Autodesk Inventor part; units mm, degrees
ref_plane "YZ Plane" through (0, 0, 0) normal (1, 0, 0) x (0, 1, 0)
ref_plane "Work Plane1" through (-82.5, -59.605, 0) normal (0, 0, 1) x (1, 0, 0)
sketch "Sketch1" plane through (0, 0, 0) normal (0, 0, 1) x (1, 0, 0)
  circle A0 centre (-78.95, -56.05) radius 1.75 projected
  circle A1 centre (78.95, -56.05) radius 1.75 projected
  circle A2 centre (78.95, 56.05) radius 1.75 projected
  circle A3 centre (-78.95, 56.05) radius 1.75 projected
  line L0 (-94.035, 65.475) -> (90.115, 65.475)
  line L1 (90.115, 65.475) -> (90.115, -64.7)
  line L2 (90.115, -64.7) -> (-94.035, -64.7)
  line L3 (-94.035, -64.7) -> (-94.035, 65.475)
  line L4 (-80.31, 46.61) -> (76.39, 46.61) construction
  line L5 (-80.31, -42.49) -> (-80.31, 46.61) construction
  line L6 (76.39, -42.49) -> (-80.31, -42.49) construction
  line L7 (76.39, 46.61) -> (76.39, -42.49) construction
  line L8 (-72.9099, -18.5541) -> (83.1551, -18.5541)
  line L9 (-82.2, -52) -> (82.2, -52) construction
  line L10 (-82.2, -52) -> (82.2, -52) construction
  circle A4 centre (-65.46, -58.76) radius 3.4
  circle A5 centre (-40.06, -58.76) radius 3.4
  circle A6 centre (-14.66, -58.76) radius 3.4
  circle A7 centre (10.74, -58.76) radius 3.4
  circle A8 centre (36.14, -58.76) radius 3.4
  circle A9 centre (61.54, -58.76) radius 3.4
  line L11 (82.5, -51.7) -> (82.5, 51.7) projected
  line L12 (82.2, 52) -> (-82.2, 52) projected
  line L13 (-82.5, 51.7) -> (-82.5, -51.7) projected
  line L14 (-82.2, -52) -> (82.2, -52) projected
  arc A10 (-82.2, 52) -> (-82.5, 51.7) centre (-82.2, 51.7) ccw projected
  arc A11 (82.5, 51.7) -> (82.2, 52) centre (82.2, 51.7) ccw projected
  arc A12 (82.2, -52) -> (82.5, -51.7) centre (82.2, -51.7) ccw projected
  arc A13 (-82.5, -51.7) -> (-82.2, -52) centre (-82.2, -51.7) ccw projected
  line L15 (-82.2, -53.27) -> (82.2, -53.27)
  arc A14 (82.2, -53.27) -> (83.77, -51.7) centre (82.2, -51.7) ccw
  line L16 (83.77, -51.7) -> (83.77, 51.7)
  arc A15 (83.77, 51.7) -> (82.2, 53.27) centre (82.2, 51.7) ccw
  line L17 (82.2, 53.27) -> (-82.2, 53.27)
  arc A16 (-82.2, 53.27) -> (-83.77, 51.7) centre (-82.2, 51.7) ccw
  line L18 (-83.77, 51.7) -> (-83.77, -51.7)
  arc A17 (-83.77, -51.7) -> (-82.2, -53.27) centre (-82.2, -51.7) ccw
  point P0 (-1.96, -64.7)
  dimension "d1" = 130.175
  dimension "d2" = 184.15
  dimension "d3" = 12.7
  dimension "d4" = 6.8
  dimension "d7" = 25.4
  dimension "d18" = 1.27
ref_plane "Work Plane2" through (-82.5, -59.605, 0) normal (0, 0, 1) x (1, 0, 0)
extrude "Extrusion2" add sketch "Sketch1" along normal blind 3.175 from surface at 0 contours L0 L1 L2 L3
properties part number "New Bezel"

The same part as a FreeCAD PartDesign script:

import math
import FreeCAD as App
import Part
import Sketcher
from FreeCAD import Vector


def add_polygon(sketch, points):
    """Adds a closed chain of lines whose ends are joined by coincident constraints."""
    first, n = sketch.GeometryCount, len(points)
    for a, b in zip(points, points[1:] + points[:1]):
        sketch.addGeometry(Part.LineSegment(App.Vector(*a, 0), App.Vector(*b, 0)), False)
    for i in range(n):
        sketch.addConstraint(Sketcher.Constraint("Coincident", first + i, 2, first + (i + 1) % n, 1))

doc = App.newDocument("Part")
body = doc.addObject("PartDesign::Body", "Body")

sketch1 = doc.addObject("Sketcher::SketchObject", "Sketch")
body.addObject(sketch1)
sketch1.AttachmentSupport = (doc.XY_Plane, [""])
sketch1.MapMode = "FlatFace"
add_polygon(sketch1, [(90.1, 65.5), (-94, 65.5), (-94, -64.7), (90.1, -64.7)])
sketch1.addGeometry(Part.Circle(Vector(-79, -56, 0), Vector(0, 0, 1), 1.8), False)
sketch1.addGeometry(Part.Circle(Vector(-65.5, -58.8, 0), Vector(0, 0, 1), 3.4), False)
sketch1.addGeometry(Part.Circle(Vector(-40.1, -58.8, 0), Vector(0, 0, 1), 3.4), False)
sketch1.addGeometry(Part.Circle(Vector(-14.7, -58.8, 0), Vector(0, 0, 1), 3.4), False)
sketch1.addGeometry(Part.Circle(Vector(10.7, -58.8, 0), Vector(0, 0, 1), 3.4), False)
sketch1.addGeometry(Part.Circle(Vector(36.1, -58.8, 0), Vector(0, 0, 1), 3.4), False)
sketch1.addGeometry(Part.Circle(Vector(61.5, -58.8, 0), Vector(0, 0, 1), 3.4), False)
sketch1.addGeometry(Part.Circle(Vector(79, -56, 0), Vector(0, 0, 1), 1.8), False)
sketch1.addGeometry(Part.LineSegment(Vector(82.2, -53.3, 0), Vector(-82.2, -53.3, 0)), False)
sketch1.addGeometry(Part.ArcOfCircle(Part.Circle(Vector(-82.2, -51.7, 0), Vector(0, 0, 1), 1.6), math.radians(180), math.radians(270)), False)
sketch1.addGeometry(Part.LineSegment(Vector(-83.8, -51.7, 0), Vector(-83.8, 51.7, 0)), False)
sketch1.addGeometry(Part.ArcOfCircle(Part.Circle(Vector(-82.2, 51.7, 0), Vector(0, 0, 1), 1.6), math.radians(90), math.radians(180)), False)
sketch1.addGeometry(Part.LineSegment(Vector(-82.2, 53.3, 0), Vector(82.2, 53.3, 0)), False)
sketch1.addGeometry(Part.ArcOfCircle(Part.Circle(Vector(82.2, 51.7, 0), Vector(0, 0, 1), 1.6), math.radians(0), math.radians(90)), False)
sketch1.addGeometry(Part.LineSegment(Vector(83.8, 51.7, 0), Vector(83.8, -51.7, 0)), False)
sketch1.addGeometry(Part.ArcOfCircle(Part.Circle(Vector(82.2, -51.7, 0), Vector(0, 0, 1), 1.6), math.radians(-90), math.radians(0)), False)
sketch1.addGeometry(Part.Circle(Vector(-79, 56, 0), Vector(0, 0, 1), 1.8), False)
sketch1.addGeometry(Part.Circle(Vector(79, 56, 0), Vector(0, 0, 1), 1.8), False)
sketch1.addConstraint(Sketcher.Constraint("Tangent", 12, 2, 13, 2))
sketch1.addConstraint(Sketcher.Constraint("Tangent", 13, 1, 14, 1))
sketch1.addConstraint(Sketcher.Constraint("Tangent", 14, 2, 15, 2))
sketch1.addConstraint(Sketcher.Constraint("Tangent", 15, 1, 16, 1))
sketch1.addConstraint(Sketcher.Constraint("Tangent", 16, 2, 17, 2))
sketch1.addConstraint(Sketcher.Constraint("Tangent", 17, 1, 18, 1))
sketch1.addConstraint(Sketcher.Constraint("Tangent", 18, 2, 19, 2))
sketch1.addConstraint(Sketcher.Constraint("Tangent", 19, 1, 12, 1))
sketch1.addConstraint(Sketcher.Constraint("Horizontal", 0))
sketch1.addConstraint(Sketcher.Constraint("Vertical", 1))
sketch1.addConstraint(Sketcher.Constraint("Horizontal", 2))
sketch1.addConstraint(Sketcher.Constraint("Vertical", 3))
sketch1.addConstraint(Sketcher.Constraint("Horizontal", 12))
sketch1.addConstraint(Sketcher.Constraint("Vertical", 14))
sketch1.addConstraint(Sketcher.Constraint("Horizontal", 16))
sketch1.addConstraint(Sketcher.Constraint("Vertical", 18))
sketch1.addConstraint(Sketcher.Constraint("Equal", 5, 6))
sketch1.addConstraint(Sketcher.Constraint("Equal", 6, 7))
sketch1.addConstraint(Sketcher.Constraint("Equal", 7, 8))
sketch1.addConstraint(Sketcher.Constraint("Equal", 8, 9))
sketch1.addConstraint(Sketcher.Constraint("Equal", 9, 10))
sketch1.addConstraint(Sketcher.Constraint("Equal", 4, 11))
sketch1.addConstraint(Sketcher.Constraint("Equal", 13, 15))
sketch1.addConstraint(Sketcher.Constraint("Equal", 15, 17))
sketch1.addConstraint(Sketcher.Constraint("Equal", 17, 19))
sketch1.addConstraint(Sketcher.Constraint("Equal", 11, 20))
sketch1.addConstraint(Sketcher.Constraint("Equal", 20, 21))
sketch1.addConstraint(Sketcher.Constraint("Symmetric", 13, 3, 17, 3, -1, 1))
sketch1.addConstraint(Sketcher.Constraint("Symmetric", 11, 3, 20, 3, -1, 1))
sketch1.addConstraint(Sketcher.Constraint("Symmetric", 4, 3, 21, 3, -1, 1))
sketch1.addConstraint(Sketcher.Constraint("Symmetric", 4, 3, 11, 3, -2))
sketch1.addConstraint(Sketcher.Constraint("Horizontal", 5, 3, 6, 3))
sketch1.addConstraint(Sketcher.Constraint("Horizontal", 6, 3, 7, 3))
sketch1.addConstraint(Sketcher.Constraint("Horizontal", 7, 3, 8, 3))
sketch1.addConstraint(Sketcher.Constraint("Horizontal", 8, 3, 9, 3))
sketch1.addConstraint(Sketcher.Constraint("Horizontal", 9, 3, 10, 3))
sketch1.addConstraint(Sketcher.Constraint("Diameter", 5, 6.8))
sketch1.addConstraint(Sketcher.Constraint("Diameter", 4, 3.5))
sketch1.addConstraint(Sketcher.Constraint("DistanceX", 0, 2, 0, 1, 184.15))
sketch1.addConstraint(Sketcher.Constraint("DistanceX", 5, 3, 6, 3, 25.4))
sketch1.addConstraint(Sketcher.Constraint("DistanceX", 6, 3, 7, 3, 25.4))
sketch1.addConstraint(Sketcher.Constraint("DistanceX", 7, 3, 8, 3, 25.4))
sketch1.addConstraint(Sketcher.Constraint("DistanceX", 8, 3, 9, 3, 25.4))
sketch1.addConstraint(Sketcher.Constraint("DistanceX", 9, 3, 10, 3, 25.4))
sketch1.addConstraint(Sketcher.Constraint("DistanceY", 1, 2, 1, 1, 130.175))
sketch1.addConstraint(Sketcher.Constraint("Radius", 13, 1.57))
sketch1.addConstraint(Sketcher.Constraint("DistanceX", 12, 2, 12, 1, 164.4))
sketch1.addConstraint(Sketcher.Constraint("DistanceY", 14, 1, 14, 2, 103.4))
sketch1.addConstraint(Sketcher.Constraint("DistanceY", 1, 2, 13, 3, 13.0))
sketch1.addConstraint(Sketcher.Constraint("DistanceY", 4, 3, 20, 3, 112.1))
sketch1.addConstraint(Sketcher.Constraint("DistanceX", 4, 3, -1, 1, 78.95))
sketch1.addConstraint(Sketcher.Constraint("DistanceX", 5, 3, -1, 1, 65.46))
sketch1.addConstraint(Sketcher.Constraint("DistanceY", 5, 3, -1, 1, 58.76))
sketch1.addConstraint(Sketcher.Constraint("DistanceX", 0, 2, -1, 1, 94.035))
pad1 = doc.addObject("PartDesign::Pad", "Pad")
body.addObject(pad1)
pad1.Profile = sketch1
pad1.Length = 3.175

doc.recompute()
